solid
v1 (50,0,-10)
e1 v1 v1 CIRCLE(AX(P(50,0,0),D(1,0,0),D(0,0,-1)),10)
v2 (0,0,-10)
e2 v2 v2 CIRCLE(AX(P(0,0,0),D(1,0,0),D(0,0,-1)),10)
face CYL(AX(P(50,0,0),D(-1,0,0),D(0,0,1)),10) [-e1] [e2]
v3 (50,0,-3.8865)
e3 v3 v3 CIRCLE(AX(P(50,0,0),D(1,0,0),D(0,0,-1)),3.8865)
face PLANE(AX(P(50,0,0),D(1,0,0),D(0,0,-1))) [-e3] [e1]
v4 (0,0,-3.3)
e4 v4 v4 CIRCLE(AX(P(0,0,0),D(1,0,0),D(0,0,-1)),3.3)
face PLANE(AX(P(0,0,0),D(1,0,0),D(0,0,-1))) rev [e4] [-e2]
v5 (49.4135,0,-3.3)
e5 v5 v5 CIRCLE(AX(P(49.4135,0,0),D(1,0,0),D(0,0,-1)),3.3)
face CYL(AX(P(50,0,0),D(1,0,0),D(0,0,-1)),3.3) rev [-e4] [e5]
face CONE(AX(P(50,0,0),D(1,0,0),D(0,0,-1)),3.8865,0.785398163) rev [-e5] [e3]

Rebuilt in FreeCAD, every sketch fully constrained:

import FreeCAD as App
import Part
import Sketcher
from FreeCAD import Vector
Q = App.Units.Quantity

doc = App.newDocument("Part")
params = doc.addObject("Spreadsheet::Sheet", "Params")
for row, (alias, value) in enumerate([
    ("sketch1_diameter", "20 mm"),
    ("pad1_length", "50 mm"),
    ("sketch2_diameter", "6.6 mm"),
    ("hole_diameter", "6.6 mm"),
    ("hole_depth", "50 mm"),
    ("hole_csink_diameter", "7.773 mm"),
], start=1):
    params.set(f"A{row}", alias)
    params.set(f"B{row}", "=" + value)
    params.setAlias(f"B{row}", alias)

body = doc.addObject("PartDesign::Body", "Body")

sketch1 = body.newObject("Sketcher::SketchObject", "Sketch")
sketch1.AttachmentSupport = (doc.getObject("YZ_Plane"), [""])
sketch1.MapMode = "FlatFace"
sketch1.addGeometry(Part.Circle(Vector(0, 0, 0), Vector(0, 0, 1), 10), False)
sketch1.addConstraint([
    Sketcher.Constraint("Coincident", 0, 3, -1, 1),
    Sketcher.Constraint("Diameter", 0, Q("20 mm")),
])
sketch1.setExpression("Constraints[1]", "Params.sketch1_diameter")
pad1 = body.newObject("PartDesign::Pad", "Pad")
pad1.Profile = sketch1
pad1.setExpression("Length", "Params.pad1_length")

sketch2 = body.newObject("Sketcher::SketchObject", "Sketch001")
sketch2.AttachmentSupport = (doc.getObject("YZ_Plane"), [""])
sketch2.MapMode = "FlatFace"
sketch2.AttachmentOffset = App.Placement(Vector(0, 0, 50), App.Rotation())
sketch2.addGeometry(Part.Circle(Vector(0, 0, 0), Vector(0, 0, 1), 3.3), False)
sketch2.addConstraint([
    Sketcher.Constraint("Coincident", 0, 3, -1, 1),
    Sketcher.Constraint("Diameter", 0, Q("6.6 mm")),
])
sketch2.setExpression("Constraints[1]", "Params.sketch2_diameter")
doc.recompute()
hole = body.newObject("PartDesign::Hole", "Hole")
hole.Profile = sketch2
hole.ThreadType = "None"
hole.setExpression("Diameter", "Params.hole_diameter")
hole.DepthType = "Dimension"
hole.setExpression("Depth", "Params.hole_depth")
hole.DrillPoint = "Angled"
hole.DrillPointAngle = 118
hole.HoleCutType = "Countersink"
hole.setExpression("HoleCutDiameter", "Params.hole_csink_diameter")
hole.HoleCutCountersinkAngle = 90

doc.recompute()
